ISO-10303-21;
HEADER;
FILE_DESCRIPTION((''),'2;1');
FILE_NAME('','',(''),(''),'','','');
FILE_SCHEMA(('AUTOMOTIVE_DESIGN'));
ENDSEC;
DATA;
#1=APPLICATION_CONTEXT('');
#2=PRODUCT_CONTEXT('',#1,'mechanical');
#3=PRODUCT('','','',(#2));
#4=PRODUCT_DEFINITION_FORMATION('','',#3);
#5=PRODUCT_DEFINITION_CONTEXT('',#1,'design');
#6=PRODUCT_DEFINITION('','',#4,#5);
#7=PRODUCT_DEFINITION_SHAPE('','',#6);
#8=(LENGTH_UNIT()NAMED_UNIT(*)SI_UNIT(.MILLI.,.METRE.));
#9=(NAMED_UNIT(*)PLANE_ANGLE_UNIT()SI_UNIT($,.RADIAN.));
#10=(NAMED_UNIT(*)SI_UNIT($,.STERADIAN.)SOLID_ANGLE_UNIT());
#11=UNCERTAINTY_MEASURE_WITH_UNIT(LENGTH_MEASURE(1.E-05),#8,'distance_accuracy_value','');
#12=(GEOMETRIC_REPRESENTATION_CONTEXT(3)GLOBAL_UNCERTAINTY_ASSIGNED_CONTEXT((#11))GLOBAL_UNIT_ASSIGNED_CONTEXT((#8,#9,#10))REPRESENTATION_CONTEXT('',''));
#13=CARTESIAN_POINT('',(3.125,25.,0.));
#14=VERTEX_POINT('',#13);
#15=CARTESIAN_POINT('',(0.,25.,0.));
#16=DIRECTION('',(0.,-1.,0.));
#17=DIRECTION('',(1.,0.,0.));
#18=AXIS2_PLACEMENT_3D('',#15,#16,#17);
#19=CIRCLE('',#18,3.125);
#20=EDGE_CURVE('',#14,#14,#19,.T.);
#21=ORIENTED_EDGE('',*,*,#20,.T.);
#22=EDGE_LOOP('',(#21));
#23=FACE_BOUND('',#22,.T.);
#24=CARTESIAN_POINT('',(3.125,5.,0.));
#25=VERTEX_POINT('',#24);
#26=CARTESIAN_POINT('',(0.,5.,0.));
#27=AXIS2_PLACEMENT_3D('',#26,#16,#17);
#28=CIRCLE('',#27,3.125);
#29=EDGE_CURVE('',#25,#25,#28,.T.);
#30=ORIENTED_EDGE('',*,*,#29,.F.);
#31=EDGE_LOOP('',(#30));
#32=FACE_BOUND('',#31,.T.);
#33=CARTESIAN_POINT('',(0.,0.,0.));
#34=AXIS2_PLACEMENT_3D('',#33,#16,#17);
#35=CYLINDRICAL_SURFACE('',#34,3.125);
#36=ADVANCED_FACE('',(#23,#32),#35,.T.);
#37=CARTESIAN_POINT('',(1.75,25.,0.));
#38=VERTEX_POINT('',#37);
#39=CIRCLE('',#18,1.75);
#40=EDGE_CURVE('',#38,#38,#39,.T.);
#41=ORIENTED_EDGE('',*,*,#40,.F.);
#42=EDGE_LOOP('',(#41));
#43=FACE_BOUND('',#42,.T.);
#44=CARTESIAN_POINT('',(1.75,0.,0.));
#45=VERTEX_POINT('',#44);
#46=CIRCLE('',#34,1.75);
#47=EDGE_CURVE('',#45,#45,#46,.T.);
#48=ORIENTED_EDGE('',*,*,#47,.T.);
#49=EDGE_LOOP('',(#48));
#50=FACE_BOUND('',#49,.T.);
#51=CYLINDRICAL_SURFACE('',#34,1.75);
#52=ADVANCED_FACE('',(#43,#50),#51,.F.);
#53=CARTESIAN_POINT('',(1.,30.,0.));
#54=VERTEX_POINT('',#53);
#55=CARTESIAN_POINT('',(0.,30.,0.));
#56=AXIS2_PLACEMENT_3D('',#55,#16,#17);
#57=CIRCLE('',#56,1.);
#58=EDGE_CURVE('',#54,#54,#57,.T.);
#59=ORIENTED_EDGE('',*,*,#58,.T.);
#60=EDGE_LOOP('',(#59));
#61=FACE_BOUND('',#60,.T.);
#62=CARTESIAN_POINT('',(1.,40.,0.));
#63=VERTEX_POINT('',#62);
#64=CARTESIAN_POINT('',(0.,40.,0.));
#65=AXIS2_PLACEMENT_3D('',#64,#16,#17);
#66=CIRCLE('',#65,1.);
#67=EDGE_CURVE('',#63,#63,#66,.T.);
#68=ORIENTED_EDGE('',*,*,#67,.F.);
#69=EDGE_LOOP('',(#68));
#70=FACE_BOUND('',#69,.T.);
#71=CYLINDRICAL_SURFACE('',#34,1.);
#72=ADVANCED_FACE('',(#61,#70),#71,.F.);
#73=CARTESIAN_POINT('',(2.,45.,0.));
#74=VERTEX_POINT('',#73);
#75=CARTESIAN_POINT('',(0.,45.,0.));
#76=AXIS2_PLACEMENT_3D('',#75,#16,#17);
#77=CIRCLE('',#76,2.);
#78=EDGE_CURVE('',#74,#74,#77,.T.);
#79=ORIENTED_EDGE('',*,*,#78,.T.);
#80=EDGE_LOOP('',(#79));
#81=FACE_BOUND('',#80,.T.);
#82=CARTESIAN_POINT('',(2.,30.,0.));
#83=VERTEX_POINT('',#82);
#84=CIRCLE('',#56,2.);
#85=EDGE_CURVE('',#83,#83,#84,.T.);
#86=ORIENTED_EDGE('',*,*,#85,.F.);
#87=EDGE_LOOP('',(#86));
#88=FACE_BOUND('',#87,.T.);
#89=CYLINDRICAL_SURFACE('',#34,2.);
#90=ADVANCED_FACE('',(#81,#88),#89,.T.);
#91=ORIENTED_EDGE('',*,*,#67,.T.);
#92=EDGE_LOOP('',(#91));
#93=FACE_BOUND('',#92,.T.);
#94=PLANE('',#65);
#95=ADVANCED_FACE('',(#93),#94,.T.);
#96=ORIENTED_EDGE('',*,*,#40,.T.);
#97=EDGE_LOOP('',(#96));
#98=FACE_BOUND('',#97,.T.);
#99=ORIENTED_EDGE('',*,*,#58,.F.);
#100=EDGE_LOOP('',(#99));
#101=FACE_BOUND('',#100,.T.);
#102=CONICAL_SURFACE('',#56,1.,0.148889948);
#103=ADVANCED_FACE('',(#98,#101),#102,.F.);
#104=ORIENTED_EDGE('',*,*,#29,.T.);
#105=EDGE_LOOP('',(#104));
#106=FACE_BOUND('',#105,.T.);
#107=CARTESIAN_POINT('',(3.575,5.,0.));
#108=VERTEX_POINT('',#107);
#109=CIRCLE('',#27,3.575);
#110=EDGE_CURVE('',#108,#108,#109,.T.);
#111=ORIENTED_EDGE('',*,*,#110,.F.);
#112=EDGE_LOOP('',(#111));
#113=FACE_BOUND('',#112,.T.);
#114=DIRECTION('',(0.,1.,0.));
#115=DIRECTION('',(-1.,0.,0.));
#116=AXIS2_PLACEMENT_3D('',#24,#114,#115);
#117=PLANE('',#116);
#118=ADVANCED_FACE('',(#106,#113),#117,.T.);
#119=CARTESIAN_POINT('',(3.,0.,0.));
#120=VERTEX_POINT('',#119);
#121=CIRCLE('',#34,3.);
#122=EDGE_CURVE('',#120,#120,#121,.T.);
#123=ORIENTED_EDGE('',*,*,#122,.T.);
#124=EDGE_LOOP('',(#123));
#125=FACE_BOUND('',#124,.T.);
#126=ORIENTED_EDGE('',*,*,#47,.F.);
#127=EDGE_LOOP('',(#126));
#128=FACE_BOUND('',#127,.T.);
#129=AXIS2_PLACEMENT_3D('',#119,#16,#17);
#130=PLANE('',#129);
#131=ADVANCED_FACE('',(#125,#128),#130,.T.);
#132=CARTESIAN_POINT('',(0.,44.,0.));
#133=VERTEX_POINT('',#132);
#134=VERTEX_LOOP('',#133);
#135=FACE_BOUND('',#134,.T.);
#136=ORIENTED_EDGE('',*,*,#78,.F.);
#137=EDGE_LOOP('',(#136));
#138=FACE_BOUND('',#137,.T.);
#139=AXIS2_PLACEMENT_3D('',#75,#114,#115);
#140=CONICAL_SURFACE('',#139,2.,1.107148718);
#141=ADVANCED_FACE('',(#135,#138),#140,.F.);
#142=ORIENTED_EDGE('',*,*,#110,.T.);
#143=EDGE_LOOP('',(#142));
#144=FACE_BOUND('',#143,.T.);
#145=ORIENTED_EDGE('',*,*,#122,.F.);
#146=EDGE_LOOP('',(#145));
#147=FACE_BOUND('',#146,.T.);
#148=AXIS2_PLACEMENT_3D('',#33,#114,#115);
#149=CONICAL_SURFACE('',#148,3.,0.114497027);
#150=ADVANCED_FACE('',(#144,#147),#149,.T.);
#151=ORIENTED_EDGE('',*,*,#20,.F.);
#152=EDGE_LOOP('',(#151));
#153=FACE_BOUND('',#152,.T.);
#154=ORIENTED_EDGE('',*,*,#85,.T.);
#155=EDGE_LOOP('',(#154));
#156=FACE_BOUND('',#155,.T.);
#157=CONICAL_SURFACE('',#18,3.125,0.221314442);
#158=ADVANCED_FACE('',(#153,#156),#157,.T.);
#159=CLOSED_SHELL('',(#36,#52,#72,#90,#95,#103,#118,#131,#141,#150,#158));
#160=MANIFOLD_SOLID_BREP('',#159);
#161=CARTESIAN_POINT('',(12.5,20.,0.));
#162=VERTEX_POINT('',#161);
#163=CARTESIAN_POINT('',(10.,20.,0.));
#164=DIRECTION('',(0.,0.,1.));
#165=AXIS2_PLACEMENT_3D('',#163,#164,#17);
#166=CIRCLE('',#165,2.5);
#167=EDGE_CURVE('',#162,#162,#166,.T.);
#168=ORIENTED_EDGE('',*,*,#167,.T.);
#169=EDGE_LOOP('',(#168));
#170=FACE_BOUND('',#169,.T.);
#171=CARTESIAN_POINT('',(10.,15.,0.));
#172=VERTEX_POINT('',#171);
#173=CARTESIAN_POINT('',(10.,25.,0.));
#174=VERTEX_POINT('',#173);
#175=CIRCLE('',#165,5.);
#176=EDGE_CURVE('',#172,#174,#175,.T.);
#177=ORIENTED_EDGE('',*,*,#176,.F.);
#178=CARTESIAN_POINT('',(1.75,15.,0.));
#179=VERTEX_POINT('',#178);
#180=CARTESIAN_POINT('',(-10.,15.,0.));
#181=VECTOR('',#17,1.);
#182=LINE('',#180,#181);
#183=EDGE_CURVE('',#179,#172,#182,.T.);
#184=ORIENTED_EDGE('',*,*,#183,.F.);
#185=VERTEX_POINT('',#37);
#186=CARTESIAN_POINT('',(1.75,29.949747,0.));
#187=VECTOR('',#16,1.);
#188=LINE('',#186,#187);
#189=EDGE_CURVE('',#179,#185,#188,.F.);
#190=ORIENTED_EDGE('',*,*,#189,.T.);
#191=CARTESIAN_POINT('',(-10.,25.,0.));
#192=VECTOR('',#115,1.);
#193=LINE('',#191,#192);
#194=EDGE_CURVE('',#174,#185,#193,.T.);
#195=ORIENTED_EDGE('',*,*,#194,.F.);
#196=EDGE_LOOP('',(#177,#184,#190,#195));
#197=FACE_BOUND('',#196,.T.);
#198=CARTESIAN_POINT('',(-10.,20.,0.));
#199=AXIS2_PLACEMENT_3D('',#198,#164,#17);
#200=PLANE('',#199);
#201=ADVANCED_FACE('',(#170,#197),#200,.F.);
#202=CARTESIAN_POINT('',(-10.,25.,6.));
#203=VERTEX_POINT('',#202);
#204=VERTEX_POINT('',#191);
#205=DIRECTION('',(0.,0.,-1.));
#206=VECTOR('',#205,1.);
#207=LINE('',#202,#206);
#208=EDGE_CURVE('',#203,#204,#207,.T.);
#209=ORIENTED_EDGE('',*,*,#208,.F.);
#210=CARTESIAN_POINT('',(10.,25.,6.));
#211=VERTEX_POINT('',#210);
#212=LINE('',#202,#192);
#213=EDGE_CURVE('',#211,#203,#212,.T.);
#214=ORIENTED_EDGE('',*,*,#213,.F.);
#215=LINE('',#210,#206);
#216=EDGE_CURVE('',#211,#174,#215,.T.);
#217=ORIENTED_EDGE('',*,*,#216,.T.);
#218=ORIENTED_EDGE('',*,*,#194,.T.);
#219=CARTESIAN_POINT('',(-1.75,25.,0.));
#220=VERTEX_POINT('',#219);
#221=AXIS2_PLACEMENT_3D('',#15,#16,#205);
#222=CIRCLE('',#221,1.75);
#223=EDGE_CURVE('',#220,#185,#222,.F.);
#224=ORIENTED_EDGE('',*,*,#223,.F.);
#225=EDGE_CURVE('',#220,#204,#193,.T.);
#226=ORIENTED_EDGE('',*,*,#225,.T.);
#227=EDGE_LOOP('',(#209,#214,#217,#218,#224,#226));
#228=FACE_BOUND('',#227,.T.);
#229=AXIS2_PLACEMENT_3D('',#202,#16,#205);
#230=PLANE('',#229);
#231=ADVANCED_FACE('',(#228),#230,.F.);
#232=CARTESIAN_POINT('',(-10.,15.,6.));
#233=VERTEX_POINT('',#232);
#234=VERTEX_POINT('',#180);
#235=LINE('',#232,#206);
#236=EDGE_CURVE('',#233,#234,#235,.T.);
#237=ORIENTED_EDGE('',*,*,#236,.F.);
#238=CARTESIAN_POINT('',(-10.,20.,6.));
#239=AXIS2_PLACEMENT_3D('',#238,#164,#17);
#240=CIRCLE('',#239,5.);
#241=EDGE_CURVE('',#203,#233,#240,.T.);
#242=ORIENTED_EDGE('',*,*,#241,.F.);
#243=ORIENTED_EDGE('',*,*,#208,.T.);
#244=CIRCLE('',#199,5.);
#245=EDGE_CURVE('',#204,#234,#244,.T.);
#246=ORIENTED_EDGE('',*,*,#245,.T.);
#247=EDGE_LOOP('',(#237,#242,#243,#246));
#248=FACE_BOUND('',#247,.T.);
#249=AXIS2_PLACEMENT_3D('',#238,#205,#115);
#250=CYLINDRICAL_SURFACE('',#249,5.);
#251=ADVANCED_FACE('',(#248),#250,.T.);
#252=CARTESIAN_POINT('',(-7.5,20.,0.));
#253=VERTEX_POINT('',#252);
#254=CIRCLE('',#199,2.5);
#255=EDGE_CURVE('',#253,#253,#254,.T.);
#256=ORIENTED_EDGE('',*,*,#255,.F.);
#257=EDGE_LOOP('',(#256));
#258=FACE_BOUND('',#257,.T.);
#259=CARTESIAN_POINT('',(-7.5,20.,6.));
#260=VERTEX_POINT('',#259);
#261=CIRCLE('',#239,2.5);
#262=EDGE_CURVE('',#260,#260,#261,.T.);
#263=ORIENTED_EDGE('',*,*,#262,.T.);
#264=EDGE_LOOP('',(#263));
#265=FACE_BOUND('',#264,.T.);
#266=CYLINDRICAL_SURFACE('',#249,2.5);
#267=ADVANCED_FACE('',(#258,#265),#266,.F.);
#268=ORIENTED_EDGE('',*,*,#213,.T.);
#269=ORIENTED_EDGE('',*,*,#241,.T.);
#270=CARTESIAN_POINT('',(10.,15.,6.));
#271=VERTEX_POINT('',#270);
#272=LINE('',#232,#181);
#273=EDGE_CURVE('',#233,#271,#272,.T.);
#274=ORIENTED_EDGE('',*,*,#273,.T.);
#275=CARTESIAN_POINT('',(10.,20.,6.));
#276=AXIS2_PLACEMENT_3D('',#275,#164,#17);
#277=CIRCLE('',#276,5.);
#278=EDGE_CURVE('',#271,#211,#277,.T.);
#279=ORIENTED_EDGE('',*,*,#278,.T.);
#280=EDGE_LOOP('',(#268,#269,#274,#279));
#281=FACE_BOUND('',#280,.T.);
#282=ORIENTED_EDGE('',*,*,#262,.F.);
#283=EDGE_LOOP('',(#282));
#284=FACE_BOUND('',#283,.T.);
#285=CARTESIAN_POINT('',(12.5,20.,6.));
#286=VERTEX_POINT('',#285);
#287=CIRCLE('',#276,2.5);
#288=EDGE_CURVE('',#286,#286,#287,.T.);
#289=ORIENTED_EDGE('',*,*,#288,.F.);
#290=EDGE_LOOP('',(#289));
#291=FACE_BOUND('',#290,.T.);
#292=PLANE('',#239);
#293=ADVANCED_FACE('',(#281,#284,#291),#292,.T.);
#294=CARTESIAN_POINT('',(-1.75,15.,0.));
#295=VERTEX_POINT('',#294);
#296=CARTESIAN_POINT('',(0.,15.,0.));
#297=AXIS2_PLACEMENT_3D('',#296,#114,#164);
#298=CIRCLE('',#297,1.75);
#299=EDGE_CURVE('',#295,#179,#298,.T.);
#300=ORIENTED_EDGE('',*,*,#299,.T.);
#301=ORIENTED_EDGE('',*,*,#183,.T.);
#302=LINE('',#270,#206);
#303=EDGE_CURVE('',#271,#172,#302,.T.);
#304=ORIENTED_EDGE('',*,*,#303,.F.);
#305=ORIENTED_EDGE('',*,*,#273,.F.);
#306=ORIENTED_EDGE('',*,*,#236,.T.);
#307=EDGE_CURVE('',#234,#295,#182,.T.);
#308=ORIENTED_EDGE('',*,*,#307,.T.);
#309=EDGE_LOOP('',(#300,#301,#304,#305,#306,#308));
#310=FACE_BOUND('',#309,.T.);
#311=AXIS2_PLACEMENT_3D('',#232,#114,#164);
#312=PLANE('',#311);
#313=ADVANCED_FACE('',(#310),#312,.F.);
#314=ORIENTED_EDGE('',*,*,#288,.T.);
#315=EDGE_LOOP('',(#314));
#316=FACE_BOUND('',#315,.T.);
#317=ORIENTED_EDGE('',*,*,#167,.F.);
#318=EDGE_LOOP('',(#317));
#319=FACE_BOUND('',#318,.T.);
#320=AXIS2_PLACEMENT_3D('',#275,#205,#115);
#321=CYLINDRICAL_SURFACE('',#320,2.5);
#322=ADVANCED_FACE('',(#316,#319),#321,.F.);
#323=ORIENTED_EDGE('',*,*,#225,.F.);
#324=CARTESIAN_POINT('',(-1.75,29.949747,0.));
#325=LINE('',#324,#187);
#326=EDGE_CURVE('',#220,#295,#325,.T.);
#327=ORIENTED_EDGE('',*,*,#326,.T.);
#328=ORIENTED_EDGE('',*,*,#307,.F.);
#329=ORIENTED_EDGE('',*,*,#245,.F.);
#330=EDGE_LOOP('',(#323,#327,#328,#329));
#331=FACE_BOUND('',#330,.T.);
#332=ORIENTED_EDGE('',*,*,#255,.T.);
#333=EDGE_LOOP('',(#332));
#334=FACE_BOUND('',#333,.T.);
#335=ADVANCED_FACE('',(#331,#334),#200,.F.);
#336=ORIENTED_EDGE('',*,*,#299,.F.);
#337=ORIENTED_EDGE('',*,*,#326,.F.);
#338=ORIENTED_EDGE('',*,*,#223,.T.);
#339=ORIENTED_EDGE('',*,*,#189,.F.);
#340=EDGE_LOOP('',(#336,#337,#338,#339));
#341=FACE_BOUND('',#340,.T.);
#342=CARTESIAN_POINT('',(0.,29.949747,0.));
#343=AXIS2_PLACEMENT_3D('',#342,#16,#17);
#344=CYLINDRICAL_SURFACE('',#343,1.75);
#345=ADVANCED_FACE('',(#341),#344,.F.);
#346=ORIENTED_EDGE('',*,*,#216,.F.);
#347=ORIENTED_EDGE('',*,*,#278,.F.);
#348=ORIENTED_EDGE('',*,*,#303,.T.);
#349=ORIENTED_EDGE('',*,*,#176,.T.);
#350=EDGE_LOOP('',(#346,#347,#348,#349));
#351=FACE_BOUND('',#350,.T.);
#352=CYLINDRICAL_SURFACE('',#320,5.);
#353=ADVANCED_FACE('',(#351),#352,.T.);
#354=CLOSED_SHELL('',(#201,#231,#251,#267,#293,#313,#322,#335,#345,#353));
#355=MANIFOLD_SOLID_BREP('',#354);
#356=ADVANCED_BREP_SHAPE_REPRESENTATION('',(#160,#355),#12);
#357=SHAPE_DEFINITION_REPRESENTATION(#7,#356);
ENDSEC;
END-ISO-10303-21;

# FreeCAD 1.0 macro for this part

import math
import FreeCAD as App
import Part
import Sketcher
from FreeCAD import Vector

doc = App.newDocument("Part")
body = doc.addObject("PartDesign::Body", "Body")

# Sketch on XY plane
sketch1 = body.newObject("Sketcher::SketchObject", "Sketch")
sketch1.AttachmentSupport = (doc.getObject("XY_Plane"), [""])
sketch1.MapMode = "FlatFace"
sketch1.addGeometry([
    Part.LineSegment(Vector(3.12, 25, 0), Vector(2, 30, 0)),  # 0
    Part.LineSegment(Vector(2, 30, 0), Vector(2, 45, 0)),  # 1
    Part.LineSegment(Vector(2, 45, 0), Vector(0, 44, 0)),  # 2
    Part.LineSegment(Vector(0, 44, 0), Vector(0, 40, 0)),  # 3
    Part.LineSegment(Vector(0, 40, 0), Vector(1, 40, 0)),  # 4
    Part.LineSegment(Vector(1, 40, 0), Vector(1, 30, 0)),  # 5
    Part.LineSegment(Vector(1, 30, 0), Vector(1.75, 25, 0)),  # 6
    Part.LineSegment(Vector(1.75, 25, 0), Vector(1.75, 0, 0)),  # 7
    Part.LineSegment(Vector(1.75, 0, 0), Vector(3, 0, 0)),  # 8
    Part.LineSegment(Vector(3, 0, 0), Vector(3.58, 5, 0)),  # 9
    Part.LineSegment(Vector(3.58, 5, 0), Vector(3.12, 5, 0)),  # 10
    Part.LineSegment(Vector(3.12, 5, 0), Vector(3.12, 25, 0)),  # 11
], False)
sketch1.addConstraint([
    Sketcher.Constraint("Coincident", 0, 2, 1, 1),
    Sketcher.Constraint("Coincident", 1, 2, 2, 1),
    Sketcher.Constraint("Coincident", 2, 2, 3, 1),
    Sketcher.Constraint("Coincident", 3, 2, 4, 1),
    Sketcher.Constraint("Coincident", 4, 2, 5, 1),
    Sketcher.Constraint("Coincident", 5, 2, 6, 1),
    Sketcher.Constraint("Coincident", 6, 2, 7, 1),
    Sketcher.Constraint("Coincident", 7, 2, 8, 1),
    Sketcher.Constraint("Coincident", 8, 2, 9, 1),
    Sketcher.Constraint("Coincident", 9, 2, 10, 1),
    Sketcher.Constraint("Coincident", 10, 2, 11, 1),
    Sketcher.Constraint("Coincident", 11, 2, 0, 1),
    Sketcher.Constraint("Vertical", 1),
    Sketcher.Constraint("Vertical", 3),
    Sketcher.Constraint("Horizontal", 4),
    Sketcher.Constraint("Vertical", 5),
    Sketcher.Constraint("Vertical", 7),
    Sketcher.Constraint("Horizontal", 8),
    Sketcher.Constraint("Horizontal", 10),
    Sketcher.Constraint("Vertical", 11),
    Sketcher.Constraint("PointOnObject", 2, 2, -2),
    Sketcher.Constraint("PointOnObject", 7, 2, -1),
    Sketcher.Constraint("Horizontal", 0, 2, 5, 2),
    Sketcher.Constraint("Horizontal", 6, 2, 11, 2),
    Sketcher.Constraint("DistanceX", 4, 1, 4, 2, 1.0),
    Sketcher.Constraint("DistanceY", 1, 1, 1, 2, 15.0),
    Sketcher.Constraint("DistanceY", 3, 2, 3, 1, 4.0),
    Sketcher.Constraint("DistanceY", 5, 2, 5, 1, 10.0),
    Sketcher.Constraint("DistanceY", 7, 2, 7, 1, 25.0),
    Sketcher.Constraint("DistanceY", 11, 1, 11, 2, 20.0),
    Sketcher.Constraint("DistanceX", -1, 1, 0, 2, 2.0),
    Sketcher.Constraint("DistanceY", -1, 1, 0, 2, 30.0),
    Sketcher.Constraint("DistanceX", -1, 1, 8, 2, 3.0),
    Sketcher.Constraint("DistanceX", 8, 1, 8, 2, 1.25),
    Sketcher.Constraint("DistanceX", 10, 2, 10, 1, 0.45),
    Sketcher.Constraint("Distance", 0, 5.125),
])
revolution = body.newObject("PartDesign::Revolution", "Revolution")
revolution.Profile = sketch1
revolution.ReferenceAxis = (sketch1, ["V_Axis"])
revolution.Angle = 360
body2 = doc.addObject("PartDesign::Body", "Body001")

# Sketch on XY plane
sketch2 = body2.newObject("Sketcher::SketchObject", "Sketch001")
sketch2.AttachmentSupport = (doc.getObject("XY_Plane001"), [""])
sketch2.MapMode = "FlatFace"
sketch2.addGeometry([
    Part.LineSegment(Vector(10, 25, 0), Vector(-10, 25, 0)),  # 0
    Part.ArcOfCircle(Part.Circle(Vector(-10, 20, 0), Vector(0, 0, 1), 5), math.radians(90), math.radians(270)),  # 1
    Part.LineSegment(Vector(-10, 15, 0), Vector(10, 15, 0)),  # 2
    Part.ArcOfCircle(Part.Circle(Vector(10, 20, 0), Vector(0, 0, 1), 5), math.radians(-90), math.radians(90)),  # 3
    Part.Circle(Vector(10, 20, 0), Vector(0, 0, 1), 2.5),  # 4
    Part.Circle(Vector(-10, 20, 0), Vector(0, 0, 1), 2.5),  # 5
], False)
sketch2.addConstraint([
    Sketcher.Constraint("Tangent", 0, 2, 1, 1),
    Sketcher.Constraint("Tangent", 1, 2, 2, 1),
    Sketcher.Constraint("Tangent", 2, 2, 3, 1),
    Sketcher.Constraint("Tangent", 3, 2, 0, 1),
    Sketcher.Constraint("Horizontal", 0),
    Sketcher.Constraint("Horizontal", 2),
    Sketcher.Constraint("Coincident", 4, 3, 3, 3),
    Sketcher.Constraint("Coincident", 5, 3, 1, 3),
    Sketcher.Constraint("Equal", 4, 5),
    Sketcher.Constraint("Diameter", 4, 5.0),
    Sketcher.Constraint("Radius", 1, 5.0),
    Sketcher.Constraint("DistanceX", 0, 2, 0, 1, 20.0),
    Sketcher.Constraint("DistanceX", 1, 3, -1, 1, 10.0),
    Sketcher.Constraint("DistanceY", -1, 1, 1, 3, 20.0),
])
pad1 = body2.newObject("PartDesign::Pad", "Pad")
pad1.Profile = sketch2
pad1.Length = 6

# Sketch on XZ plane
sketch3 = body2.newObject("Sketcher::SketchObject", "Sketch002")
sketch3.AttachmentSupport = (doc.getObject("XZ_Plane001"), [""])
sketch3.MapMode = "FlatFace"
sketch3.addGeometry(Part.Circle(Vector(0, 0, 0), Vector(0, 0, 1), 1.8), False)
sketch3.addConstraint([
    Sketcher.Constraint("Coincident", 0, 3, -1, 1),
    Sketcher.Constraint("Diameter", 0, 3.5),
])
pocket1 = body2.newObject("PartDesign::Pocket", "Pocket")
pocket1.Profile = sketch3
pocket1.Length = 25

doc.recompute()
